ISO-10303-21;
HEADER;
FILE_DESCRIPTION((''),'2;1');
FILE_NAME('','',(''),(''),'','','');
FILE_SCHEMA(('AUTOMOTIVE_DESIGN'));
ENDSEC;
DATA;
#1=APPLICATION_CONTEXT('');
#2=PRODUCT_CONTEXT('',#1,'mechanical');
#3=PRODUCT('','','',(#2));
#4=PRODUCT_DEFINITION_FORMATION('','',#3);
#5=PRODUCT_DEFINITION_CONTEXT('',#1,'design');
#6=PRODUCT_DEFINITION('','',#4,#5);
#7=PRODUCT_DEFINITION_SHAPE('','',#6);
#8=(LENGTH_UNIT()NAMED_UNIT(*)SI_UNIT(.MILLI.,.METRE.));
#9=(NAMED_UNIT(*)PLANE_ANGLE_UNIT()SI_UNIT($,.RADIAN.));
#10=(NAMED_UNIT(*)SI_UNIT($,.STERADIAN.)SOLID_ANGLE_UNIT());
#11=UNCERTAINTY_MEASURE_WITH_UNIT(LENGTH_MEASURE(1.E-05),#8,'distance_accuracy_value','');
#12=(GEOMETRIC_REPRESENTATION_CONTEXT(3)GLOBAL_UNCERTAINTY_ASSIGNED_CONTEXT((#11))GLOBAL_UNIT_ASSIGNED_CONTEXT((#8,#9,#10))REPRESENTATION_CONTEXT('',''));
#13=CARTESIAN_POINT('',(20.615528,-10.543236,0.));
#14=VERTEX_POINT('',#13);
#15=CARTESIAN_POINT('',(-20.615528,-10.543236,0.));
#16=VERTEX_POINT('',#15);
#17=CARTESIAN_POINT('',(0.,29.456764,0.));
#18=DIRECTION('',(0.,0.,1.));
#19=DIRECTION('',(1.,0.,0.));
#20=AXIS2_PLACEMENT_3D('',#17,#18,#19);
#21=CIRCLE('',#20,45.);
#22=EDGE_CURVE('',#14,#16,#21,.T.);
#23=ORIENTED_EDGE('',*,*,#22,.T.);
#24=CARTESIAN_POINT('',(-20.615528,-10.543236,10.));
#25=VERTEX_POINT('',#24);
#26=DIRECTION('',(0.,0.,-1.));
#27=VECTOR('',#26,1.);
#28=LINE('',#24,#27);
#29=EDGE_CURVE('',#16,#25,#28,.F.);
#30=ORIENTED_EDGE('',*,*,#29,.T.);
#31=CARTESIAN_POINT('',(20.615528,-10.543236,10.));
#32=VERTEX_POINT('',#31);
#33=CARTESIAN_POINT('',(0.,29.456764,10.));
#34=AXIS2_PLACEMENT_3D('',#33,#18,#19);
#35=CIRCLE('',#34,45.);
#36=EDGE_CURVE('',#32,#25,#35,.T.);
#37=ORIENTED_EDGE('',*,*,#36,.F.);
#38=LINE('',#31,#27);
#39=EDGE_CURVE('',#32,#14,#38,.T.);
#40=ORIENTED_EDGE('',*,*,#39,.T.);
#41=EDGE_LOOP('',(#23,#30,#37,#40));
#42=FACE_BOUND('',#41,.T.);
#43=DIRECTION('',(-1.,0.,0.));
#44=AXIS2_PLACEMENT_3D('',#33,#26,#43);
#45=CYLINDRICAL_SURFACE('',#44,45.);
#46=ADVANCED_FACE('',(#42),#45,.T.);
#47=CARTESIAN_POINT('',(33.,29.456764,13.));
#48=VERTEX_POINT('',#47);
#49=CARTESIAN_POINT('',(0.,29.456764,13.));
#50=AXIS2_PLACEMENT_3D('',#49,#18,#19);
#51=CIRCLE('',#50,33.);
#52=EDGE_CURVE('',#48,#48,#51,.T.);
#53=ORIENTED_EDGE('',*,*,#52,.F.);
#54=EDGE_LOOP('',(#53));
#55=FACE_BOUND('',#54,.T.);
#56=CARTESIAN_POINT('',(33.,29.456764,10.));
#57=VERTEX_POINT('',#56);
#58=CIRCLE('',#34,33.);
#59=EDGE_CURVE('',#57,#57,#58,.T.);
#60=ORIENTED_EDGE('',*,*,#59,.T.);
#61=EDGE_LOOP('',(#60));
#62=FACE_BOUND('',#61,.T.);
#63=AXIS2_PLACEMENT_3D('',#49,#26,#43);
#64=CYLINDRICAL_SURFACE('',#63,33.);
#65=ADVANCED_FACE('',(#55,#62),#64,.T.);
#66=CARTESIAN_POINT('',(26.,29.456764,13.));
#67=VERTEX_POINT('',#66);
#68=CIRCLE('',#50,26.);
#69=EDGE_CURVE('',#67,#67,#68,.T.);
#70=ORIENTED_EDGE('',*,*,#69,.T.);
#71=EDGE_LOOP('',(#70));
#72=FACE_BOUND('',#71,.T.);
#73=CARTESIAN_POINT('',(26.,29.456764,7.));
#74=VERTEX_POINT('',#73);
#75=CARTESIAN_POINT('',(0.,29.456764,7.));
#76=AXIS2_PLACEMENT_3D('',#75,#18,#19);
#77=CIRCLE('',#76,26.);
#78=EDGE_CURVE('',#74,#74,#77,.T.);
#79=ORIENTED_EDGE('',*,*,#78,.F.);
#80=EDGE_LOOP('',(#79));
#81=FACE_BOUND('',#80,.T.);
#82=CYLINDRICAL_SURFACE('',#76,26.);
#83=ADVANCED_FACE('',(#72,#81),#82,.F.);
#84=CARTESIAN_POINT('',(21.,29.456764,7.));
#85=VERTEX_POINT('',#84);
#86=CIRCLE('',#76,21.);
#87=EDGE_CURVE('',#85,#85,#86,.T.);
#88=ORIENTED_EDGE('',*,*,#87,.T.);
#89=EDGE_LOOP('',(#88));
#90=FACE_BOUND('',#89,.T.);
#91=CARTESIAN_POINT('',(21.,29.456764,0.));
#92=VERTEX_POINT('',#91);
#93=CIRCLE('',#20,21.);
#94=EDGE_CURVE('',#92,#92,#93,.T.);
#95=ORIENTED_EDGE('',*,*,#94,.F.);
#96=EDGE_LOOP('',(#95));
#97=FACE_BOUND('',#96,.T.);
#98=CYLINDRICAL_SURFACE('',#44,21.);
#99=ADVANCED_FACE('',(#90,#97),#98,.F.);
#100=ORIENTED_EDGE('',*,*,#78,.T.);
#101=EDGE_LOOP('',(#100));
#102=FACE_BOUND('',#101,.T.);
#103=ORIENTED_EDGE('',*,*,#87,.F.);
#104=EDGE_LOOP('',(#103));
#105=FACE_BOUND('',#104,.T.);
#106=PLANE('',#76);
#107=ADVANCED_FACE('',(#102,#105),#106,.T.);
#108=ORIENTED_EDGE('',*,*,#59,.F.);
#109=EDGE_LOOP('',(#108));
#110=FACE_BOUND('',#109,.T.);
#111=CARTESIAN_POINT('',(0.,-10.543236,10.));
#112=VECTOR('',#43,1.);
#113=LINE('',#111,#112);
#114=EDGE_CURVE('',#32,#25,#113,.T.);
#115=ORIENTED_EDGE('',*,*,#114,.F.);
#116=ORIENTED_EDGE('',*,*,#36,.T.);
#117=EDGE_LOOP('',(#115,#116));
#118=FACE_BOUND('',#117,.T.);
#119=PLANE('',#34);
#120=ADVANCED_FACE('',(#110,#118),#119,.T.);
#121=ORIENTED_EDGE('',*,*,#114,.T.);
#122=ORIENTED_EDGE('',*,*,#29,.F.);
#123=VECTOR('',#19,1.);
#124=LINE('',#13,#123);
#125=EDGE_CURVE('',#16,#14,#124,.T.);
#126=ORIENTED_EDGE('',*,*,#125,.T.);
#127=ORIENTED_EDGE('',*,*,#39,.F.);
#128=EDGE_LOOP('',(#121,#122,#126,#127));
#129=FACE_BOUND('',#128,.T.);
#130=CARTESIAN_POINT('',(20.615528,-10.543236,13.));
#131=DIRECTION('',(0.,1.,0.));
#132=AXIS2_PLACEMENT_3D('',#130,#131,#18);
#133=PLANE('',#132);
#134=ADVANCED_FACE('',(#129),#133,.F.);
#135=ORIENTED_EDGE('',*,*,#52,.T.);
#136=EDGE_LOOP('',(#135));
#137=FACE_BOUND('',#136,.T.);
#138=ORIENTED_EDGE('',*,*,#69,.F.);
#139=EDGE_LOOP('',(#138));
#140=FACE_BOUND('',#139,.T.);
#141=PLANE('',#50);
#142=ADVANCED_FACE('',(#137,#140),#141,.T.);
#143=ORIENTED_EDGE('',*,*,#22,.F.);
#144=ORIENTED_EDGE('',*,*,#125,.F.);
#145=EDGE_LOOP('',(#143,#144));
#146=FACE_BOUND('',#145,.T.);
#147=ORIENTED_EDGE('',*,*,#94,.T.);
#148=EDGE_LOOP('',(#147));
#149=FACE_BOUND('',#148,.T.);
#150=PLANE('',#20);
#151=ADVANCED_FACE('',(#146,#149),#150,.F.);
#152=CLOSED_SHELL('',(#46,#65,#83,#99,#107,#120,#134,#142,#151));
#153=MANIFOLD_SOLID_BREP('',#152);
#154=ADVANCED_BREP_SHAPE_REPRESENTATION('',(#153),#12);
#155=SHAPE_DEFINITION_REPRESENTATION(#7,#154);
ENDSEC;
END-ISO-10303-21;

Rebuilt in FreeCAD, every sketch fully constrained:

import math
import FreeCAD as App
import Part
import Sketcher
from FreeCAD import Vector

doc = App.newDocument("Part")
params = doc.addObject("Spreadsheet::Sheet", "Params")
for row, (alias, value) in enumerate([
    ("sketch1_diameter", "90 mm"),
    ("sketch1_diameter2", "42 mm"),
    ("pad1_length", "10 mm"),
    ("sketch2_diameter", "66 mm"),
    ("sketch2_diameter2", "42 mm"),
    ("pad2_length", "3 mm"),
    ("sketch3_radius", "45 mm"),
    ("sketch4_diameter", "52 mm"),
    ("pocket2_length", "6 mm"),
], start=1):
    params.set(f"A{row}", alias)
    params.set(f"B{row}", "=" + value)
    params.setAlias(f"B{row}", alias)

body = doc.addObject("PartDesign::Body", "Body")

sketch1 = body.newObject("Sketcher::SketchObject", "Sketch")
sketch1.AttachmentSupport = (doc.getObject("XY_Plane"), [""])
sketch1.MapMode = "FlatFace"
sketch1.addGeometry(Part.Circle(Vector(0, 29.456764, 0), Vector(0, 0, 1), 45), False)
sketch1.addGeometry(Part.Circle(Vector(0, 29.456764, 0), Vector(0, 0, 1), 21), False)
sketch1.addConstraint(Sketcher.Constraint("Coincident", 1, 3, 0, 3))
sketch1.addConstraint(Sketcher.Constraint("PointOnObject", 0, 3, -2))
sketch1.addConstraint(Sketcher.Constraint("Diameter", 0, 90.0))
sketch1.addConstraint(Sketcher.Constraint("Diameter", 1, 42.0))
sketch1.addConstraint(Sketcher.Constraint("DistanceY", -1, 1, 0, 3, 29.456764))
sketch1.setExpression("Constraints[2]", "Params.sketch1_diameter")
sketch1.setExpression("Constraints[3]", "Params.sketch1_diameter2")
pad1 = body.newObject("PartDesign::Pad", "Pad")
pad1.Profile = sketch1
pad1.setExpression("Length", "Params.pad1_length")

sketch2 = body.newObject("Sketcher::SketchObject", "Sketch001")
sketch2.AttachmentSupport = (doc.getObject("XY_Plane"), [""])
sketch2.MapMode = "FlatFace"
sketch2.AttachmentOffset = App.Placement(Vector(0, 0, 10), App.Rotation())
sketch2.addGeometry(Part.Circle(Vector(0, 29.456764, 0), Vector(0, 0, 1), 33), False)
sketch2.addGeometry(Part.Circle(Vector(0, 29.456764, 0), Vector(0, 0, 1), 21), False)
sketch2.addConstraint(Sketcher.Constraint("Coincident", 1, 3, 0, 3))
sketch2.addConstraint(Sketcher.Constraint("PointOnObject", 0, 3, -2))
sketch2.addConstraint(Sketcher.Constraint("Diameter", 0, 66.0))
sketch2.addConstraint(Sketcher.Constraint("Diameter", 1, 42.0))
sketch2.addConstraint(Sketcher.Constraint("DistanceY", -1, 1, 0, 3, 29.456764))
sketch2.setExpression("Constraints[2]", "Params.sketch2_diameter")
sketch2.setExpression("Constraints[3]", "Params.sketch2_diameter2")
pad2 = body.newObject("PartDesign::Pad", "Pad001")
pad2.Profile = sketch2
pad2.setExpression("Length", "Params.pad2_length")

sketch3 = body.newObject("Sketcher::SketchObject", "Sketch002")
sketch3.AttachmentSupport = (doc.getObject("XY_Plane"), [""])
sketch3.MapMode = "FlatFace"
sketch3.addGeometry(Part.LineSegment(Vector(-20.615528, -10.543236, 0), Vector(20.615528, -10.543236, 0)), False)
sketch3.addGeometry(Part.ArcOfCircle(Part.Circle(Vector(0, 29.456764, 0), Vector(0, 0, 1), 45), math.radians(-117.266044), math.radians(-62.733956)), False)
sketch3.addConstraint(Sketcher.Constraint("Coincident", 0, 1, 1, 1))
sketch3.addConstraint(Sketcher.Constraint("Coincident", 1, 2, 0, 2))
sketch3.addConstraint(Sketcher.Constraint("Horizontal", 0))
sketch3.addConstraint(Sketcher.Constraint("PointOnObject", 1, 3, -2))
sketch3.addConstraint(Sketcher.Constraint("Radius", 1, 45.0))
sketch3.addConstraint(Sketcher.Constraint("DistanceY", 0, 1, 1, 3, 40.0))
sketch3.addConstraint(Sketcher.Constraint("DistanceY", -1, 1, 1, 3, 29.456764))
sketch3.setExpression("Constraints[4]", "Params.sketch3_radius")
pocket1 = body.newObject("PartDesign::Pocket", "Pocket")
pocket1.Profile = sketch3
pocket1.Type = "ThroughAll"
pocket1.Reversed = True

sketch4 = body.newObject("Sketcher::SketchObject", "Sketch003")
sketch4.AttachmentSupport = (doc.getObject("XY_Plane"), [""])
sketch4.MapMode = "FlatFace"
sketch4.AttachmentOffset = App.Placement(Vector(0, 0, 13), App.Rotation())
sketch4.addGeometry(Part.Circle(Vector(0, 29.456764, 0), Vector(0, 0, 1), 26), False)
sketch4.addConstraint(Sketcher.Constraint("PointOnObject", 0, 3, -2))
sketch4.addConstraint(Sketcher.Constraint("Diameter", 0, 52.0))
sketch4.addConstraint(Sketcher.Constraint("DistanceY", -1, 1, 0, 3, 29.456764))
sketch4.setExpression("Constraints[1]", "Params.sketch4_diameter")
pocket2 = body.newObject("PartDesign::Pocket", "Pocket001")
pocket2.Profile = sketch4
pocket2.setExpression("Length", "Params.pocket2_length")

doc.recompute()
